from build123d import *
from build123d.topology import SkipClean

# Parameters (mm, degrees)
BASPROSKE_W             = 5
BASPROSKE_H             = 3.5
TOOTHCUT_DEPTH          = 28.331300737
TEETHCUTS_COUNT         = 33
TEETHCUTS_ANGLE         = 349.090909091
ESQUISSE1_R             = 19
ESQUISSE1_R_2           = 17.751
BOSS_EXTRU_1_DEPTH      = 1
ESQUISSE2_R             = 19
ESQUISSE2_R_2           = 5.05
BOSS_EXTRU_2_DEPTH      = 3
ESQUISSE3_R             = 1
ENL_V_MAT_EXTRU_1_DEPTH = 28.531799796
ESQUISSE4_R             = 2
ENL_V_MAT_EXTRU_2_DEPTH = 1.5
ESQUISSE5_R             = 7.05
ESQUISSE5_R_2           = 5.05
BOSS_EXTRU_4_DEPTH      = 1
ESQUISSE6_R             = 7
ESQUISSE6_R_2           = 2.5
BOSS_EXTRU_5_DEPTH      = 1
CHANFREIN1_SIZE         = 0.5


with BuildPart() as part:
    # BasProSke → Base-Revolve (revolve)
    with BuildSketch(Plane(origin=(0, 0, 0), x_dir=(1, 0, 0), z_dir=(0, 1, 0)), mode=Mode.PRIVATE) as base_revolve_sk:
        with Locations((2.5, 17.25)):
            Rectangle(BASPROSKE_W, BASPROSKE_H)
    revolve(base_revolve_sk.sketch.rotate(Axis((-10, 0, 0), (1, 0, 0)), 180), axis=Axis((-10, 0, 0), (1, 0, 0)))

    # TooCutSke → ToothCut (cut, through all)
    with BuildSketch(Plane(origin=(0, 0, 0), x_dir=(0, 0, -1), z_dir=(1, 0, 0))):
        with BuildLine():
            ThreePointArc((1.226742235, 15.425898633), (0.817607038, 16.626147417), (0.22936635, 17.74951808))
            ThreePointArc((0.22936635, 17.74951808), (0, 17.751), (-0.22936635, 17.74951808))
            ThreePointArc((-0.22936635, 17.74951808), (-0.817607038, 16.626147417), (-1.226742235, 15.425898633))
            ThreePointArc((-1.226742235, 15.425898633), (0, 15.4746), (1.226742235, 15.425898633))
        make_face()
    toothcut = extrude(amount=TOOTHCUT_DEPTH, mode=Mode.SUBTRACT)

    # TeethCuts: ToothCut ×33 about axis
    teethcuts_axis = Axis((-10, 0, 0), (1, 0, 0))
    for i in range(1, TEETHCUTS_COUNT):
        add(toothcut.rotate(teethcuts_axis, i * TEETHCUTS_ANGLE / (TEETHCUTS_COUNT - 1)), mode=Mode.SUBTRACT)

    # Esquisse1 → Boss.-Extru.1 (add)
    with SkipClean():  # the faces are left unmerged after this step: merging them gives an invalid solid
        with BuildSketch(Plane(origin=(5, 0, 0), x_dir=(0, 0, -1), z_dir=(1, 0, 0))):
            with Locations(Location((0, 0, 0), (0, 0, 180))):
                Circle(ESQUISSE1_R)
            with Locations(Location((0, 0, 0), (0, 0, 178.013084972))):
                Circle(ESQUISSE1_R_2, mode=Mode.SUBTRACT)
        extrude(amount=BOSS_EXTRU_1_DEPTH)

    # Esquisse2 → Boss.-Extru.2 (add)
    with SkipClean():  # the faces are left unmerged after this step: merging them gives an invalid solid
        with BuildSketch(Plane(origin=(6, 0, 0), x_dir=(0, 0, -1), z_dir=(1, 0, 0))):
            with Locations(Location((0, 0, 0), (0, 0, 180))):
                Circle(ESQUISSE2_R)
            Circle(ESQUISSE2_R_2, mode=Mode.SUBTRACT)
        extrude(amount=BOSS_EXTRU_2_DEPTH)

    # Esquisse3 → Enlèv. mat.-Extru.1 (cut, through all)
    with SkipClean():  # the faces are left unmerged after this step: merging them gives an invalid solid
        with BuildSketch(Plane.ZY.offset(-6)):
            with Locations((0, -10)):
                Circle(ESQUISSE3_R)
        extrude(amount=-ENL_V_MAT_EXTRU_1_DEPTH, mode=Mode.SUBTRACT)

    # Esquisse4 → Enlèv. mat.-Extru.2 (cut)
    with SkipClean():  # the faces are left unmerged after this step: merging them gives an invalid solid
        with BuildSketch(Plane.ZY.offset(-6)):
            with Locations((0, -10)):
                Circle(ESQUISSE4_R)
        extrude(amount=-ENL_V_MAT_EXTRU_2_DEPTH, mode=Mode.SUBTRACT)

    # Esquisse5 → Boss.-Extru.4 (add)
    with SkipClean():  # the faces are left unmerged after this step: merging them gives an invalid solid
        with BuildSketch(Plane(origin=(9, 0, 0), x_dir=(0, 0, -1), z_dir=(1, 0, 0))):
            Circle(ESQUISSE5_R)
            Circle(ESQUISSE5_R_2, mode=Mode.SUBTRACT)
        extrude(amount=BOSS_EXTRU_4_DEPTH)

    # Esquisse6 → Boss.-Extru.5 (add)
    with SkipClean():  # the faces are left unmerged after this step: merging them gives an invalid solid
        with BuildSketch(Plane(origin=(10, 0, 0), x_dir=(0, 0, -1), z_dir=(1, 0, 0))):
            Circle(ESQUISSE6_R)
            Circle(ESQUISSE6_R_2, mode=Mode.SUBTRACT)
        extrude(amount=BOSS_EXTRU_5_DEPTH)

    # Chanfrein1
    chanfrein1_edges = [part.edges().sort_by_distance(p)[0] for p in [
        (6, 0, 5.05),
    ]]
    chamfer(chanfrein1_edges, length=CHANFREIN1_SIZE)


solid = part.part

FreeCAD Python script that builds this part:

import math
import FreeCAD as App
import Part
import Sketcher

V = App.Vector


def edges_at(feature, points):
    """Names of the edges that pass closest to the given points."""
    edges = feature.Shape.Edges
    near = lambda p: min(range(len(edges)), key=lambda i: edges[i].distToShape(Part.Vertex(*p))[0])
    return sorted({f"Edge{near(p) + 1}" for p in points})


def add_polygon(sketch, points):
    """Adds a closed chain of lines whose ends are joined by coincident constraints."""
    first, n = sketch.GeometryCount, len(points)
    for a, b in zip(points, points[1:] + points[:1]):
        sketch.addGeometry(Part.LineSegment(App.Vector(*a, 0), App.Vector(*b, 0)), False)
    for i in range(n):
        sketch.addConstraint(Sketcher.Constraint("Coincident", first + i, 2, first + (i + 1) % n, 1))

doc = App.newDocument("Part")
body = doc.addObject("PartDesign::Body", "Body")

sketch1 = body.newObject("Sketcher::SketchObject", "Sketch")
sketch1.AttachmentSupport = (doc.getObject("XZ_Plane"), [""])
sketch1.MapMode = "FlatFace"
add_polygon(sketch1, [(0, -19), (0, -15.5), (5, -15.5), (5, -19)])
sketch1.addConstraint([
    Sketcher.Constraint("Vertical", 0),
    Sketcher.Constraint("Horizontal", 1),
    Sketcher.Constraint("Vertical", 2),
    Sketcher.Constraint("Horizontal", 3),
    Sketcher.Constraint("PointOnObject", 0, 2, -2),
    Sketcher.Constraint("DistanceX", 1, 1, 1, 2, 5.0),
    Sketcher.Constraint("DistanceY", 0, 1, 0, 2, 3.5),
    Sketcher.Constraint("DistanceY", 2, 2, -1, 1, 19.0),
])
revolution = body.newObject("PartDesign::Revolution", "Revolution")
revolution.Profile = sketch1
revolution.ReferenceAxis = (sketch1, ["H_Axis"])
revolution.Angle = 360

sketch2 = body.newObject("Sketcher::SketchObject", "Sketch001")
sketch2.AttachmentSupport = (doc.getObject("YZ_Plane"), [""])
sketch2.MapMode = "FlatFace"
sketch2.addGeometry([
    Part.ArcOfCircle(Part.Circle(V(13.37, 6.76, 0), V(0, 0, 1), 8.25), math.radians(-75.58), math.radians(-57.95)),
    Part.ArcOfCircle(Part.Circle(V(0, 0, 0), V(0, 0, 1), 17.75), math.radians(-0.74), math.radians(0.74)),
    Part.ArcOfCircle(Part.Circle(V(13.37, -6.76, 0), V(0, 0, 1), 8.25), math.radians(57.95), math.radians(75.58)),
    Part.ArcOfCircle(Part.Circle(V(0, 0, 0), V(0, 0, 1), 15.47), math.radians(-4.55), math.radians(4.55)),
], False)
sketch2.addConstraint([
    Sketcher.Constraint("Coincident", 0, 2, 1, 1),
    Sketcher.Constraint("Coincident", 1, 2, 2, 1),
    Sketcher.Constraint("Coincident", 2, 2, 3, 2),
    Sketcher.Constraint("Coincident", 3, 1, 0, 1),
    Sketcher.Constraint("Coincident", 1, 3, -1, 1),
    Sketcher.Constraint("Coincident", 3, 3, -1, 1),
    Sketcher.Constraint("Equal", 0, 2),
    Sketcher.Constraint("Symmetric", 0, 3, 2, 3, -1),
    Sketcher.Constraint("Radius", 0, 8.25),
    Sketcher.Constraint("Radius", 1, 17.750998),
    Sketcher.Constraint("Radius", 3, 15.4746),
    Sketcher.Constraint("DistanceX", -1, 1, 2, 2, 15.425899),
    Sketcher.Constraint("DistanceX", -1, 1, 0, 3, 13.372072),
])
pocket1 = body.newObject("PartDesign::Pocket", "Pocket")
pocket1.Profile = sketch2
pocket1.Type = "ThroughAll"
pocket1.Reversed = True
doc.recompute()

polarpattern = body.newObject("PartDesign::PolarPattern", "PolarPattern")
polarpattern.Originals = [pocket1]
polarpattern.Axis = (doc.getObject("X_Axis"), [""])
polarpattern.Angle = 360
polarpattern.Occurrences = 33
body.Tip = polarpattern

sketch3 = body.newObject("Sketcher::SketchObject", "Sketch002")
sketch3.AttachmentSupport = (doc.getObject("YZ_Plane"), [""])
sketch3.MapMode = "FlatFace"
sketch3.AttachmentOffset = App.Placement(V(0, 0, 5), App.Rotation())
sketch3.addGeometry([
    Part.Circle(V(0, 0, 0), V(0, 0, 1), 19),
    Part.Circle(V(0, 0, 0), V(0, 0, 1), 18),
], False)
sketch3.addConstraint([
    Sketcher.Constraint("Coincident", 0, 3, -1, 1),
    Sketcher.Constraint("Coincident", 1, 3, -1, 1),
    Sketcher.Constraint("Diameter", 0, 38.0),
    Sketcher.Constraint("Diameter", 1, 35.502),
])
pad1 = body.newObject("PartDesign::Pad", "Pad")
pad1.Profile = sketch3
pad1.Length = 1

sketch4 = body.newObject("Sketcher::SketchObject", "Sketch003")
sketch4.AttachmentSupport = (doc.getObject("YZ_Plane"), [""])
sketch4.MapMode = "FlatFace"
sketch4.AttachmentOffset = App.Placement(V(0, 0, 6), App.Rotation())
sketch4.addGeometry([
    Part.Circle(V(0, 0, 0), V(0, 0, 1), 19),
    Part.Circle(V(0, 0, 0), V(0, 0, 1), 5),
], False)
sketch4.addConstraint([
    Sketcher.Constraint("Coincident", 0, 3, -1, 1),
    Sketcher.Constraint("Coincident", 1, 3, -1, 1),
    Sketcher.Constraint("Diameter", 0, 38.0),
    Sketcher.Constraint("Diameter", 1, 10.1),
])
pad2 = body.newObject("PartDesign::Pad", "Pad001")
pad2.Profile = sketch4
pad2.Length = 3

sketch5 = body.newObject("Sketcher::SketchObject", "Sketch004")
sketch5.AttachmentSupport = (doc.getObject("YZ_Plane"), [""])
sketch5.MapMode = "FlatFace"
sketch5.AttachmentOffset = App.Placement(V(0, 0, 6), App.Rotation())
sketch5.addGeometry(Part.Circle(V(-10, 0, 0), V(0, 0, 1), 1), False)
sketch5.addConstraint([
    Sketcher.Constraint("PointOnObject", 0, 3, -1),
    Sketcher.Constraint("Diameter", 0, 2.0),
    Sketcher.Constraint("DistanceX", 0, 3, -1, 1, 10.0),
])
pocket2 = body.newObject("PartDesign::Pocket", "Pocket001")
pocket2.Profile = sketch5
pocket2.Type = "ThroughAll"
pocket2.Reversed = True

sketch6 = body.newObject("Sketcher::SketchObject", "Sketch005")
sketch6.AttachmentSupport = (doc.getObject("YZ_Plane"), [""])
sketch6.MapMode = "FlatFace"
sketch6.AttachmentOffset = App.Placement(V(0, 0, 6), App.Rotation())
sketch6.addGeometry(Part.Circle(V(-10, 0, 0), V(0, 0, 1), 2), False)
sketch6.addConstraint([
    Sketcher.Constraint("PointOnObject", 0, 3, -1),
    Sketcher.Constraint("Diameter", 0, 4.0),
    Sketcher.Constraint("DistanceX", 0, 3, -1, 1, 10.0),
])
pocket3 = body.newObject("PartDesign::Pocket", "Pocket002")
pocket3.Profile = sketch6
pocket3.Length = 1.5
pocket3.Reversed = True

sketch7 = body.newObject("Sketcher::SketchObject", "Sketch006")
sketch7.AttachmentSupport = (doc.getObject("YZ_Plane"), [""])
sketch7.MapMode = "FlatFace"
sketch7.AttachmentOffset = App.Placement(V(0, 0, 9), App.Rotation())
sketch7.addGeometry([
    Part.Circle(V(0, 0, 0), V(0, 0, 1), 7),
    Part.Circle(V(0, 0, 0), V(0, 0, 1), 5),
], False)
sketch7.addConstraint([
    Sketcher.Constraint("Coincident", 0, 3, -1, 1),
    Sketcher.Constraint("Coincident", 1, 3, -1, 1),
    Sketcher.Constraint("Diameter", 0, 14.1),
    Sketcher.Constraint("Diameter", 1, 10.1),
])
pad3 = body.newObject("PartDesign::Pad", "Pad002")
pad3.Profile = sketch7
pad3.Length = 1

sketch8 = body.newObject("Sketcher::SketchObject", "Sketch007")
sketch8.AttachmentSupport = (doc.getObject("YZ_Plane"), [""])
sketch8.MapMode = "FlatFace"
sketch8.AttachmentOffset = App.Placement(V(0, 0, 10), App.Rotation())
sketch8.addGeometry([
    Part.Circle(V(0, 0, 0), V(0, 0, 1), 7),
    Part.Circle(V(0, 0, 0), V(0, 0, 1), 2.5),
], False)
sketch8.addConstraint([
    Sketcher.Constraint("Coincident", 0, 3, -1, 1),
    Sketcher.Constraint("Coincident", 1, 3, -1, 1),
    Sketcher.Constraint("Diameter", 0, 14.0),
    Sketcher.Constraint("Diameter", 1, 5.0),
])
pad4 = body.newObject("PartDesign::Pad", "Pad003")
pad4.Profile = sketch8
pad4.Length = 1
doc.recompute()

chamfer = body.newObject("PartDesign::Chamfer", "Chamfer")
chamfer.Base = (pad4, edges_at(pad4, [(6, 0, 5.05)]))
chamfer.Size = 0.5

doc.recompute()
